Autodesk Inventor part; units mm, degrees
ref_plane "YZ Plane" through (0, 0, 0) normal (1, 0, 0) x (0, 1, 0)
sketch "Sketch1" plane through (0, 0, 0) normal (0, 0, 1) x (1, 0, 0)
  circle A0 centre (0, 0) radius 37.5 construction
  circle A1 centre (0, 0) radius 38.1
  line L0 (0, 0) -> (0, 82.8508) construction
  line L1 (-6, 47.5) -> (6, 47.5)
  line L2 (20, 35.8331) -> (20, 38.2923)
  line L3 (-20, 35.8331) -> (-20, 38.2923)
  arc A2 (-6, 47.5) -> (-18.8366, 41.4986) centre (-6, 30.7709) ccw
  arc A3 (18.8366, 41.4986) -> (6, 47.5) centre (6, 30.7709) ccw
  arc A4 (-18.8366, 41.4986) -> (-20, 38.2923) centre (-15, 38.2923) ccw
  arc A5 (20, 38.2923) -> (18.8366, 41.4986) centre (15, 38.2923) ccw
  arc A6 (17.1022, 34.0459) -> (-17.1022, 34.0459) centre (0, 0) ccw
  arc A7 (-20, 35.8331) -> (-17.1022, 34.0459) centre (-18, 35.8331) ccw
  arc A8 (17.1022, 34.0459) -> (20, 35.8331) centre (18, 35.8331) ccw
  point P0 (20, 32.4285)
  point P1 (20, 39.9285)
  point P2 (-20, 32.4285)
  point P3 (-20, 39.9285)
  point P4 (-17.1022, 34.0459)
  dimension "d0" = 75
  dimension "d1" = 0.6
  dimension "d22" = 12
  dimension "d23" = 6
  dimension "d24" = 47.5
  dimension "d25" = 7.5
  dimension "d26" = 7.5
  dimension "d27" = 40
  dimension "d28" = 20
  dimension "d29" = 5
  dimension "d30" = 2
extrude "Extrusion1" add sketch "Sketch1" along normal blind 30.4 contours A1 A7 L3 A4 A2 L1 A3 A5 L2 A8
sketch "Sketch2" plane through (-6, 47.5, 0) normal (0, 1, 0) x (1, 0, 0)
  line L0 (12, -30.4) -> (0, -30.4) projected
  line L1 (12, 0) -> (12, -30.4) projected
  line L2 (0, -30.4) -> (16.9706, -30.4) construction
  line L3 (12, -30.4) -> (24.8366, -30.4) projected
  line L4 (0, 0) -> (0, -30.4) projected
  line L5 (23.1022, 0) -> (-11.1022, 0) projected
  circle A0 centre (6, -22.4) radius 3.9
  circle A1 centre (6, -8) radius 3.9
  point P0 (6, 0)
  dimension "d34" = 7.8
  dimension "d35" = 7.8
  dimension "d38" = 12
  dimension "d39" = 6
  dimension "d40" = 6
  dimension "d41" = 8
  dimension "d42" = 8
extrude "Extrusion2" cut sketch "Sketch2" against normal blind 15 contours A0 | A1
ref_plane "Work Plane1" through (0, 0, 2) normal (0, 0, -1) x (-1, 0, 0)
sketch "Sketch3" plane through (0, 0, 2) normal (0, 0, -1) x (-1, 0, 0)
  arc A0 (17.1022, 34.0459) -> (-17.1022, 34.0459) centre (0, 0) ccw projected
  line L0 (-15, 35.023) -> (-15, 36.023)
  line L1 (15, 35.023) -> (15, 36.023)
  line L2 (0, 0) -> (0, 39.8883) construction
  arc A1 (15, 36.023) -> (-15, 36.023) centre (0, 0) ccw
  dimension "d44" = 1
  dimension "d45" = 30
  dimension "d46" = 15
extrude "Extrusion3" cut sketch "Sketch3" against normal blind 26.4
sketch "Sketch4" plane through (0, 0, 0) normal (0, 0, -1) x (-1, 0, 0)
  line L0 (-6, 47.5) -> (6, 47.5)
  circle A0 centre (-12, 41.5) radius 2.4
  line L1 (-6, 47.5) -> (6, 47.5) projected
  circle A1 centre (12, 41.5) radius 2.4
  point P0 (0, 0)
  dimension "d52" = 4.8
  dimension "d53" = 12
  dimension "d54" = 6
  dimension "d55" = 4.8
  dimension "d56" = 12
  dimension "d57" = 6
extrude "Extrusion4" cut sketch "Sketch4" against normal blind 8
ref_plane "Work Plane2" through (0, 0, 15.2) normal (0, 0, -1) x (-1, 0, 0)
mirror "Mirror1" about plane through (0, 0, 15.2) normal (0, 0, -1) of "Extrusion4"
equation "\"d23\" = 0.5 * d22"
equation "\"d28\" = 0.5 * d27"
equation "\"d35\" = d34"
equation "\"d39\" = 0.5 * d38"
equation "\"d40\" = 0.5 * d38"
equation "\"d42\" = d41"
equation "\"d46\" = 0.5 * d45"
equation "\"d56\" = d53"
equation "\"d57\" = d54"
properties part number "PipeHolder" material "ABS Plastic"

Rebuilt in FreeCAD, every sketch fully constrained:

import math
import FreeCAD as App
import Part
import Sketcher

doc = App.newDocument("Part")
body = doc.addObject("PartDesign::Body", "Body")

sketch1 = body.newObject("Sketcher::SketchObject", "Sketch")
sketch1.AttachmentSupport = (doc.getObject("XY_Plane"), [""])
sketch1.MapMode = "FlatFace"
sketch1.addGeometry([
    Part.ArcOfCircle(Part.Circle(App.Vector(0, 0, 0), App.Vector(0, 0, 1), 38.1), math.radians(63), math.radians(117)),
    Part.ArcOfCircle(Part.Circle(App.Vector(18, 35.8, 0), App.Vector(0, 0, 1), 2), math.radians(-117), math.radians(0)),
    Part.LineSegment(App.Vector(20, 35.8, 0), App.Vector(20, 38.3, 0)),
    Part.ArcOfCircle(Part.Circle(App.Vector(15, 38.3, 0), App.Vector(0, 0, 1), 5), math.radians(0), math.radians(40)),
    Part.ArcOfCircle(Part.Circle(App.Vector(6, 30.8, 0), App.Vector(0, 0, 1), 16.7), math.radians(40), math.radians(90)),
    Part.LineSegment(App.Vector(6, 47.5, 0), App.Vector(-6, 47.5, 0)),
    Part.ArcOfCircle(Part.Circle(App.Vector(-6, 30.8, 0), App.Vector(0, 0, 1), 16.7), math.radians(90), math.radians(140)),
    Part.ArcOfCircle(Part.Circle(App.Vector(-15, 38.3, 0), App.Vector(0, 0, 1), 5), math.radians(140), math.radians(180)),
    Part.LineSegment(App.Vector(-20, 38.3, 0), App.Vector(-20, 35.8, 0)),
    Part.ArcOfCircle(Part.Circle(App.Vector(-18, 35.8, 0), App.Vector(0, 0, 1), 2), math.radians(180), math.radians(297)),
], False)
sketch1.addConstraint([
    Sketcher.Constraint("Tangent", 0, 1, 1, 1),
    Sketcher.Constraint("Tangent", 1, 2, 2, 1),
    Sketcher.Constraint("Tangent", 2, 2, 3, 1),
    Sketcher.Constraint("Tangent", 3, 2, 4, 1),
    Sketcher.Constraint("Tangent", 4, 2, 5, 1),
    Sketcher.Constraint("Tangent", 5, 2, 6, 1),
    Sketcher.Constraint("Tangent", 6, 2, 7, 1),
    Sketcher.Constraint("Tangent", 7, 2, 8, 1),
    Sketcher.Constraint("Tangent", 8, 2, 9, 1),
    Sketcher.Constraint("Tangent", 9, 2, 0, 2),
    Sketcher.Constraint("Vertical", 2),
    Sketcher.Constraint("Horizontal", 5),
    Sketcher.Constraint("Vertical", 8),
    Sketcher.Constraint("Coincident", 0, 3, -1, 1),
    Sketcher.Constraint("Equal", 4, 6),
    Sketcher.Constraint("Equal", 3, 7),
    Sketcher.Constraint("Equal", 1, 9),
    Sketcher.Constraint("Symmetric", 3, 3, 7, 3, -2),
    Sketcher.Constraint("Radius", 1, 2.0),
    Sketcher.Constraint("Radius", 3, 5.0),
    Sketcher.Constraint("DistanceX", 5, 2, 5, 1, 12.0),
    Sketcher.Constraint("DistanceX", -1, 1, 1, 2, 20.0),
    Sketcher.Constraint("DistanceY", -1, 1, 4, 2, 47.5),
    Sketcher.Constraint("Radius", 0, 38.1),
    Sketcher.Constraint("Radius", 4, 16.729),
])
pad1 = body.newObject("PartDesign::Pad", "Pad")
pad1.Profile = sketch1
pad1.Length = 30.4

sketch2 = body.newObject("Sketcher::SketchObject", "Sketch001")
sketch2.AttachmentSupport = (doc.getObject("XZ_Plane"), [""])
sketch2.MapMode = "FlatFace"
sketch2.AttachmentOffset = App.Placement(App.Vector(0, 0, -47.5), App.Rotation())
sketch2.addGeometry([
    Part.Circle(App.Vector(0, 22.4, 0), App.Vector(0, 0, 1), 3.9),
    Part.Circle(App.Vector(0, 8, 0), App.Vector(0, 0, 1), 3.9),
], False)
sketch2.addConstraint([
    Sketcher.Constraint("Equal", 0, 1),
    Sketcher.Constraint("PointOnObject", 0, 3, -2),
    Sketcher.Constraint("PointOnObject", 1, 3, -2),
    Sketcher.Constraint("Diameter", 0, 7.8),
    Sketcher.Constraint("DistanceY", -1, 1, 1, 3, 8.0),
    Sketcher.Constraint("DistanceY", -1, 1, 0, 3, 22.4),
])
pocket1 = body.newObject("PartDesign::Pocket", "Pocket")
pocket1.Profile = sketch2
pocket1.Length = 15
pocket1.Reversed = True

sketch3 = body.newObject("Sketcher::SketchObject", "Sketch002")
sketch3.AttachmentSupport = (doc.getObject("XY_Plane"), [""])
sketch3.MapMode = "FlatFace"
sketch3.AttachmentOffset = App.Placement(App.Vector(0, 0, 2), App.Rotation())
sketch3.addGeometry([
    Part.ArcOfCircle(Part.Circle(App.Vector(0, 0, 0), App.Vector(0, 0, 1), 38.1), math.radians(67), math.radians(113)),
    Part.LineSegment(App.Vector(-15, 35, 0), App.Vector(-15, 36, 0)),
    Part.ArcOfCircle(Part.Circle(App.Vector(0, 0, 0), App.Vector(0, 0, 1), 39), math.radians(67), math.radians(113)),
    Part.LineSegment(App.Vector(15, 36, 0), App.Vector(15, 35, 0)),
], False)
sketch3.addConstraint([
    Sketcher.Constraint("Coincident", 0, 2, 1, 1),
    Sketcher.Constraint("Coincident", 1, 2, 2, 2),
    Sketcher.Constraint("Coincident", 2, 1, 3, 1),
    Sketcher.Constraint("Coincident", 3, 2, 0, 1),
    Sketcher.Constraint("Vertical", 1),
    Sketcher.Constraint("Vertical", 3),
    Sketcher.Constraint("Coincident", 0, 3, -1, 1),
    Sketcher.Constraint("Coincident", 2, 3, -1, 1),
    Sketcher.Constraint("Horizontal", 1, 2, 2, 1),
    Sketcher.Constraint("DistanceY", 1, 1, 1, 2, 1.0),
    Sketcher.Constraint("DistanceX", 0, 2, -1, 1, 15.0),
    Sketcher.Constraint("Radius", 0, 38.1),
])
pocket2 = body.newObject("PartDesign::Pocket", "Pocket001")
pocket2.Profile = sketch3
pocket2.Length = 26.4
pocket2.Reversed = True

sketch4 = body.newObject("Sketcher::SketchObject", "Sketch003")
sketch4.AttachmentSupport = (doc.getObject("XY_Plane"), [""])
sketch4.MapMode = "FlatFace"
sketch4.addGeometry([
    Part.Circle(App.Vector(12, 41.5, 0), App.Vector(0, 0, 1), 2.4),
    Part.Circle(App.Vector(-12, 41.5, 0), App.Vector(0, 0, 1), 2.4),
], False)
sketch4.addConstraint([
    Sketcher.Constraint("Equal", 0, 1),
    Sketcher.Constraint("Symmetric", 0, 3, 1, 3, -2),
    Sketcher.Constraint("Diameter", 0, 4.8),
    Sketcher.Constraint("DistanceX", -1, 1, 0, 3, 12.0),
    Sketcher.Constraint("DistanceY", -1, 1, 0, 3, 41.5),
])
pocket3 = body.newObject("PartDesign::Pocket", "Pocket002")
pocket3.Profile = sketch4
pocket3.Length = 8
pocket3.Reversed = True
doc.recompute()

datumplane = body.newObject("PartDesign::Plane", "DatumPlane")
datumplane.AttachmentSupport = (doc.getObject("XY_Plane"), [""])
datumplane.MapMode = "FlatFace"
datumplane.AttachmentOffset = App.Placement(App.Vector(0, 0, 15.2), App.Rotation())
mirrored = body.newObject("PartDesign::Mirrored", "Mirrored")
mirrored.Originals = [pocket3]
mirrored.MirrorPlane = (datumplane, [""])
body.Tip = mirrored

doc.recompute()
